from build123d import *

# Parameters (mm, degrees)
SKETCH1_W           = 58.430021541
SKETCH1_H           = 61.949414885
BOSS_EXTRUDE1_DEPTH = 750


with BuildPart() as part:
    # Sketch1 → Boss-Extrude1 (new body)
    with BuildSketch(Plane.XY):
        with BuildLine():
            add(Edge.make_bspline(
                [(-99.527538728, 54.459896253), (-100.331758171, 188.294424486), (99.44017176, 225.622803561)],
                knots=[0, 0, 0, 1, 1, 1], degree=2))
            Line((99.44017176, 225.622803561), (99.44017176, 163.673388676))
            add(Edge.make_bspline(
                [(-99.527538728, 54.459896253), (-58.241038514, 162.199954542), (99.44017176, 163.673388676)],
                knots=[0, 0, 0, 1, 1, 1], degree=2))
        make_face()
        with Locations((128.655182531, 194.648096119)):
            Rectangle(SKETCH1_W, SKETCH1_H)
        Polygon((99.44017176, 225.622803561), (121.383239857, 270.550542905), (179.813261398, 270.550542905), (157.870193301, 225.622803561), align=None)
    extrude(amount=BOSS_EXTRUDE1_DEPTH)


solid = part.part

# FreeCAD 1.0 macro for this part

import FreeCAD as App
import Part
import Sketcher
Q = App.Units.Quantity

doc = App.newDocument("Part")
body = doc.addObject("PartDesign::Body", "Body")

sketch1 = body.newObject("Sketcher::SketchObject", "Sketch")
sketch1.AttachmentSupport = (doc.getObject("XY_Plane"), [""])
sketch1.MapMode = "FlatFace"
sketch1.addGeometry(Part.BSplineCurve([App.Vector(-99.527539, 54.459896, 0), App.Vector(-100.331758, 188.294424, 0), App.Vector(99.440172, 225.622804, 0)], [3, 3], [0, 1], False, 2, [1, 1, 1], False), False)
sketch1.addGeometry(Part.BSplineCurve([App.Vector(-99.527539, 54.459896, 0), App.Vector(-58.241039, 162.199955, 0), App.Vector(99.440172, 163.673389, 0)], [3, 3], [0, 1], False, 2, [1, 1, 1], False), False)
sketch1.addGeometry(Part.LineSegment(App.Vector(99.440172, 163.673389, 0), App.Vector(157.870193, 163.673389, 0)), False)
sketch1.addGeometry(Part.LineSegment(App.Vector(157.870193, 163.673389, 0), App.Vector(157.870193, 225.622804, 0)), False)
sketch1.addGeometry(Part.LineSegment(App.Vector(157.870193, 225.622804, 0), App.Vector(179.813261, 270.550543, 0)), False)
sketch1.addGeometry(Part.LineSegment(App.Vector(179.813261, 270.550543, 0), App.Vector(121.38324, 270.550543, 0)), False)
sketch1.addGeometry(Part.LineSegment(App.Vector(121.38324, 270.550543, 0), App.Vector(99.440172, 225.622804, 0)), False)
sketch1.addConstraint(Sketcher.Constraint("Block", 0))
sketch1.addConstraint(Sketcher.Constraint("Block", 1))
sketch1.addConstraint(Sketcher.Constraint("Coincident", 1, 2, 2, 1))
sketch1.addConstraint(Sketcher.Constraint("Coincident", 2, 2, 3, 1))
sketch1.addConstraint(Sketcher.Constraint("Coincident", 3, 2, 4, 1))
sketch1.addConstraint(Sketcher.Constraint("Coincident", 4, 2, 5, 1))
sketch1.addConstraint(Sketcher.Constraint("Coincident", 5, 2, 6, 1))
sketch1.addConstraint(Sketcher.Constraint("Coincident", 6, 2, 0, 2))
sketch1.addConstraint(Sketcher.Constraint("Horizontal", 2))
sketch1.addConstraint(Sketcher.Constraint("Vertical", 3))
sketch1.addConstraint(Sketcher.Constraint("Horizontal", 5))
sketch1.addConstraint(Sketcher.Constraint("Distance", 4, Q("50 mm")))
sketch1.addConstraint(Sketcher.Constraint("Distance", 6, Q("50 mm")))
sketch1.addConstraint(Sketcher.Constraint("DistanceX", 2, 1, 2, 2, Q("58.430022 mm")))
sketch1.addConstraint(Sketcher.Constraint("DistanceX", 5, 2, 5, 1, Q("58.430022 mm")))
sketch1.addConstraint(Sketcher.Constraint("DistanceX", -1, 1, 4, 2, Q("179.813261 mm")))
pad1 = body.newObject("PartDesign::Pad", "Pad")
pad1.Profile = sketch1
pad1.Length = 750

doc.recompute()
